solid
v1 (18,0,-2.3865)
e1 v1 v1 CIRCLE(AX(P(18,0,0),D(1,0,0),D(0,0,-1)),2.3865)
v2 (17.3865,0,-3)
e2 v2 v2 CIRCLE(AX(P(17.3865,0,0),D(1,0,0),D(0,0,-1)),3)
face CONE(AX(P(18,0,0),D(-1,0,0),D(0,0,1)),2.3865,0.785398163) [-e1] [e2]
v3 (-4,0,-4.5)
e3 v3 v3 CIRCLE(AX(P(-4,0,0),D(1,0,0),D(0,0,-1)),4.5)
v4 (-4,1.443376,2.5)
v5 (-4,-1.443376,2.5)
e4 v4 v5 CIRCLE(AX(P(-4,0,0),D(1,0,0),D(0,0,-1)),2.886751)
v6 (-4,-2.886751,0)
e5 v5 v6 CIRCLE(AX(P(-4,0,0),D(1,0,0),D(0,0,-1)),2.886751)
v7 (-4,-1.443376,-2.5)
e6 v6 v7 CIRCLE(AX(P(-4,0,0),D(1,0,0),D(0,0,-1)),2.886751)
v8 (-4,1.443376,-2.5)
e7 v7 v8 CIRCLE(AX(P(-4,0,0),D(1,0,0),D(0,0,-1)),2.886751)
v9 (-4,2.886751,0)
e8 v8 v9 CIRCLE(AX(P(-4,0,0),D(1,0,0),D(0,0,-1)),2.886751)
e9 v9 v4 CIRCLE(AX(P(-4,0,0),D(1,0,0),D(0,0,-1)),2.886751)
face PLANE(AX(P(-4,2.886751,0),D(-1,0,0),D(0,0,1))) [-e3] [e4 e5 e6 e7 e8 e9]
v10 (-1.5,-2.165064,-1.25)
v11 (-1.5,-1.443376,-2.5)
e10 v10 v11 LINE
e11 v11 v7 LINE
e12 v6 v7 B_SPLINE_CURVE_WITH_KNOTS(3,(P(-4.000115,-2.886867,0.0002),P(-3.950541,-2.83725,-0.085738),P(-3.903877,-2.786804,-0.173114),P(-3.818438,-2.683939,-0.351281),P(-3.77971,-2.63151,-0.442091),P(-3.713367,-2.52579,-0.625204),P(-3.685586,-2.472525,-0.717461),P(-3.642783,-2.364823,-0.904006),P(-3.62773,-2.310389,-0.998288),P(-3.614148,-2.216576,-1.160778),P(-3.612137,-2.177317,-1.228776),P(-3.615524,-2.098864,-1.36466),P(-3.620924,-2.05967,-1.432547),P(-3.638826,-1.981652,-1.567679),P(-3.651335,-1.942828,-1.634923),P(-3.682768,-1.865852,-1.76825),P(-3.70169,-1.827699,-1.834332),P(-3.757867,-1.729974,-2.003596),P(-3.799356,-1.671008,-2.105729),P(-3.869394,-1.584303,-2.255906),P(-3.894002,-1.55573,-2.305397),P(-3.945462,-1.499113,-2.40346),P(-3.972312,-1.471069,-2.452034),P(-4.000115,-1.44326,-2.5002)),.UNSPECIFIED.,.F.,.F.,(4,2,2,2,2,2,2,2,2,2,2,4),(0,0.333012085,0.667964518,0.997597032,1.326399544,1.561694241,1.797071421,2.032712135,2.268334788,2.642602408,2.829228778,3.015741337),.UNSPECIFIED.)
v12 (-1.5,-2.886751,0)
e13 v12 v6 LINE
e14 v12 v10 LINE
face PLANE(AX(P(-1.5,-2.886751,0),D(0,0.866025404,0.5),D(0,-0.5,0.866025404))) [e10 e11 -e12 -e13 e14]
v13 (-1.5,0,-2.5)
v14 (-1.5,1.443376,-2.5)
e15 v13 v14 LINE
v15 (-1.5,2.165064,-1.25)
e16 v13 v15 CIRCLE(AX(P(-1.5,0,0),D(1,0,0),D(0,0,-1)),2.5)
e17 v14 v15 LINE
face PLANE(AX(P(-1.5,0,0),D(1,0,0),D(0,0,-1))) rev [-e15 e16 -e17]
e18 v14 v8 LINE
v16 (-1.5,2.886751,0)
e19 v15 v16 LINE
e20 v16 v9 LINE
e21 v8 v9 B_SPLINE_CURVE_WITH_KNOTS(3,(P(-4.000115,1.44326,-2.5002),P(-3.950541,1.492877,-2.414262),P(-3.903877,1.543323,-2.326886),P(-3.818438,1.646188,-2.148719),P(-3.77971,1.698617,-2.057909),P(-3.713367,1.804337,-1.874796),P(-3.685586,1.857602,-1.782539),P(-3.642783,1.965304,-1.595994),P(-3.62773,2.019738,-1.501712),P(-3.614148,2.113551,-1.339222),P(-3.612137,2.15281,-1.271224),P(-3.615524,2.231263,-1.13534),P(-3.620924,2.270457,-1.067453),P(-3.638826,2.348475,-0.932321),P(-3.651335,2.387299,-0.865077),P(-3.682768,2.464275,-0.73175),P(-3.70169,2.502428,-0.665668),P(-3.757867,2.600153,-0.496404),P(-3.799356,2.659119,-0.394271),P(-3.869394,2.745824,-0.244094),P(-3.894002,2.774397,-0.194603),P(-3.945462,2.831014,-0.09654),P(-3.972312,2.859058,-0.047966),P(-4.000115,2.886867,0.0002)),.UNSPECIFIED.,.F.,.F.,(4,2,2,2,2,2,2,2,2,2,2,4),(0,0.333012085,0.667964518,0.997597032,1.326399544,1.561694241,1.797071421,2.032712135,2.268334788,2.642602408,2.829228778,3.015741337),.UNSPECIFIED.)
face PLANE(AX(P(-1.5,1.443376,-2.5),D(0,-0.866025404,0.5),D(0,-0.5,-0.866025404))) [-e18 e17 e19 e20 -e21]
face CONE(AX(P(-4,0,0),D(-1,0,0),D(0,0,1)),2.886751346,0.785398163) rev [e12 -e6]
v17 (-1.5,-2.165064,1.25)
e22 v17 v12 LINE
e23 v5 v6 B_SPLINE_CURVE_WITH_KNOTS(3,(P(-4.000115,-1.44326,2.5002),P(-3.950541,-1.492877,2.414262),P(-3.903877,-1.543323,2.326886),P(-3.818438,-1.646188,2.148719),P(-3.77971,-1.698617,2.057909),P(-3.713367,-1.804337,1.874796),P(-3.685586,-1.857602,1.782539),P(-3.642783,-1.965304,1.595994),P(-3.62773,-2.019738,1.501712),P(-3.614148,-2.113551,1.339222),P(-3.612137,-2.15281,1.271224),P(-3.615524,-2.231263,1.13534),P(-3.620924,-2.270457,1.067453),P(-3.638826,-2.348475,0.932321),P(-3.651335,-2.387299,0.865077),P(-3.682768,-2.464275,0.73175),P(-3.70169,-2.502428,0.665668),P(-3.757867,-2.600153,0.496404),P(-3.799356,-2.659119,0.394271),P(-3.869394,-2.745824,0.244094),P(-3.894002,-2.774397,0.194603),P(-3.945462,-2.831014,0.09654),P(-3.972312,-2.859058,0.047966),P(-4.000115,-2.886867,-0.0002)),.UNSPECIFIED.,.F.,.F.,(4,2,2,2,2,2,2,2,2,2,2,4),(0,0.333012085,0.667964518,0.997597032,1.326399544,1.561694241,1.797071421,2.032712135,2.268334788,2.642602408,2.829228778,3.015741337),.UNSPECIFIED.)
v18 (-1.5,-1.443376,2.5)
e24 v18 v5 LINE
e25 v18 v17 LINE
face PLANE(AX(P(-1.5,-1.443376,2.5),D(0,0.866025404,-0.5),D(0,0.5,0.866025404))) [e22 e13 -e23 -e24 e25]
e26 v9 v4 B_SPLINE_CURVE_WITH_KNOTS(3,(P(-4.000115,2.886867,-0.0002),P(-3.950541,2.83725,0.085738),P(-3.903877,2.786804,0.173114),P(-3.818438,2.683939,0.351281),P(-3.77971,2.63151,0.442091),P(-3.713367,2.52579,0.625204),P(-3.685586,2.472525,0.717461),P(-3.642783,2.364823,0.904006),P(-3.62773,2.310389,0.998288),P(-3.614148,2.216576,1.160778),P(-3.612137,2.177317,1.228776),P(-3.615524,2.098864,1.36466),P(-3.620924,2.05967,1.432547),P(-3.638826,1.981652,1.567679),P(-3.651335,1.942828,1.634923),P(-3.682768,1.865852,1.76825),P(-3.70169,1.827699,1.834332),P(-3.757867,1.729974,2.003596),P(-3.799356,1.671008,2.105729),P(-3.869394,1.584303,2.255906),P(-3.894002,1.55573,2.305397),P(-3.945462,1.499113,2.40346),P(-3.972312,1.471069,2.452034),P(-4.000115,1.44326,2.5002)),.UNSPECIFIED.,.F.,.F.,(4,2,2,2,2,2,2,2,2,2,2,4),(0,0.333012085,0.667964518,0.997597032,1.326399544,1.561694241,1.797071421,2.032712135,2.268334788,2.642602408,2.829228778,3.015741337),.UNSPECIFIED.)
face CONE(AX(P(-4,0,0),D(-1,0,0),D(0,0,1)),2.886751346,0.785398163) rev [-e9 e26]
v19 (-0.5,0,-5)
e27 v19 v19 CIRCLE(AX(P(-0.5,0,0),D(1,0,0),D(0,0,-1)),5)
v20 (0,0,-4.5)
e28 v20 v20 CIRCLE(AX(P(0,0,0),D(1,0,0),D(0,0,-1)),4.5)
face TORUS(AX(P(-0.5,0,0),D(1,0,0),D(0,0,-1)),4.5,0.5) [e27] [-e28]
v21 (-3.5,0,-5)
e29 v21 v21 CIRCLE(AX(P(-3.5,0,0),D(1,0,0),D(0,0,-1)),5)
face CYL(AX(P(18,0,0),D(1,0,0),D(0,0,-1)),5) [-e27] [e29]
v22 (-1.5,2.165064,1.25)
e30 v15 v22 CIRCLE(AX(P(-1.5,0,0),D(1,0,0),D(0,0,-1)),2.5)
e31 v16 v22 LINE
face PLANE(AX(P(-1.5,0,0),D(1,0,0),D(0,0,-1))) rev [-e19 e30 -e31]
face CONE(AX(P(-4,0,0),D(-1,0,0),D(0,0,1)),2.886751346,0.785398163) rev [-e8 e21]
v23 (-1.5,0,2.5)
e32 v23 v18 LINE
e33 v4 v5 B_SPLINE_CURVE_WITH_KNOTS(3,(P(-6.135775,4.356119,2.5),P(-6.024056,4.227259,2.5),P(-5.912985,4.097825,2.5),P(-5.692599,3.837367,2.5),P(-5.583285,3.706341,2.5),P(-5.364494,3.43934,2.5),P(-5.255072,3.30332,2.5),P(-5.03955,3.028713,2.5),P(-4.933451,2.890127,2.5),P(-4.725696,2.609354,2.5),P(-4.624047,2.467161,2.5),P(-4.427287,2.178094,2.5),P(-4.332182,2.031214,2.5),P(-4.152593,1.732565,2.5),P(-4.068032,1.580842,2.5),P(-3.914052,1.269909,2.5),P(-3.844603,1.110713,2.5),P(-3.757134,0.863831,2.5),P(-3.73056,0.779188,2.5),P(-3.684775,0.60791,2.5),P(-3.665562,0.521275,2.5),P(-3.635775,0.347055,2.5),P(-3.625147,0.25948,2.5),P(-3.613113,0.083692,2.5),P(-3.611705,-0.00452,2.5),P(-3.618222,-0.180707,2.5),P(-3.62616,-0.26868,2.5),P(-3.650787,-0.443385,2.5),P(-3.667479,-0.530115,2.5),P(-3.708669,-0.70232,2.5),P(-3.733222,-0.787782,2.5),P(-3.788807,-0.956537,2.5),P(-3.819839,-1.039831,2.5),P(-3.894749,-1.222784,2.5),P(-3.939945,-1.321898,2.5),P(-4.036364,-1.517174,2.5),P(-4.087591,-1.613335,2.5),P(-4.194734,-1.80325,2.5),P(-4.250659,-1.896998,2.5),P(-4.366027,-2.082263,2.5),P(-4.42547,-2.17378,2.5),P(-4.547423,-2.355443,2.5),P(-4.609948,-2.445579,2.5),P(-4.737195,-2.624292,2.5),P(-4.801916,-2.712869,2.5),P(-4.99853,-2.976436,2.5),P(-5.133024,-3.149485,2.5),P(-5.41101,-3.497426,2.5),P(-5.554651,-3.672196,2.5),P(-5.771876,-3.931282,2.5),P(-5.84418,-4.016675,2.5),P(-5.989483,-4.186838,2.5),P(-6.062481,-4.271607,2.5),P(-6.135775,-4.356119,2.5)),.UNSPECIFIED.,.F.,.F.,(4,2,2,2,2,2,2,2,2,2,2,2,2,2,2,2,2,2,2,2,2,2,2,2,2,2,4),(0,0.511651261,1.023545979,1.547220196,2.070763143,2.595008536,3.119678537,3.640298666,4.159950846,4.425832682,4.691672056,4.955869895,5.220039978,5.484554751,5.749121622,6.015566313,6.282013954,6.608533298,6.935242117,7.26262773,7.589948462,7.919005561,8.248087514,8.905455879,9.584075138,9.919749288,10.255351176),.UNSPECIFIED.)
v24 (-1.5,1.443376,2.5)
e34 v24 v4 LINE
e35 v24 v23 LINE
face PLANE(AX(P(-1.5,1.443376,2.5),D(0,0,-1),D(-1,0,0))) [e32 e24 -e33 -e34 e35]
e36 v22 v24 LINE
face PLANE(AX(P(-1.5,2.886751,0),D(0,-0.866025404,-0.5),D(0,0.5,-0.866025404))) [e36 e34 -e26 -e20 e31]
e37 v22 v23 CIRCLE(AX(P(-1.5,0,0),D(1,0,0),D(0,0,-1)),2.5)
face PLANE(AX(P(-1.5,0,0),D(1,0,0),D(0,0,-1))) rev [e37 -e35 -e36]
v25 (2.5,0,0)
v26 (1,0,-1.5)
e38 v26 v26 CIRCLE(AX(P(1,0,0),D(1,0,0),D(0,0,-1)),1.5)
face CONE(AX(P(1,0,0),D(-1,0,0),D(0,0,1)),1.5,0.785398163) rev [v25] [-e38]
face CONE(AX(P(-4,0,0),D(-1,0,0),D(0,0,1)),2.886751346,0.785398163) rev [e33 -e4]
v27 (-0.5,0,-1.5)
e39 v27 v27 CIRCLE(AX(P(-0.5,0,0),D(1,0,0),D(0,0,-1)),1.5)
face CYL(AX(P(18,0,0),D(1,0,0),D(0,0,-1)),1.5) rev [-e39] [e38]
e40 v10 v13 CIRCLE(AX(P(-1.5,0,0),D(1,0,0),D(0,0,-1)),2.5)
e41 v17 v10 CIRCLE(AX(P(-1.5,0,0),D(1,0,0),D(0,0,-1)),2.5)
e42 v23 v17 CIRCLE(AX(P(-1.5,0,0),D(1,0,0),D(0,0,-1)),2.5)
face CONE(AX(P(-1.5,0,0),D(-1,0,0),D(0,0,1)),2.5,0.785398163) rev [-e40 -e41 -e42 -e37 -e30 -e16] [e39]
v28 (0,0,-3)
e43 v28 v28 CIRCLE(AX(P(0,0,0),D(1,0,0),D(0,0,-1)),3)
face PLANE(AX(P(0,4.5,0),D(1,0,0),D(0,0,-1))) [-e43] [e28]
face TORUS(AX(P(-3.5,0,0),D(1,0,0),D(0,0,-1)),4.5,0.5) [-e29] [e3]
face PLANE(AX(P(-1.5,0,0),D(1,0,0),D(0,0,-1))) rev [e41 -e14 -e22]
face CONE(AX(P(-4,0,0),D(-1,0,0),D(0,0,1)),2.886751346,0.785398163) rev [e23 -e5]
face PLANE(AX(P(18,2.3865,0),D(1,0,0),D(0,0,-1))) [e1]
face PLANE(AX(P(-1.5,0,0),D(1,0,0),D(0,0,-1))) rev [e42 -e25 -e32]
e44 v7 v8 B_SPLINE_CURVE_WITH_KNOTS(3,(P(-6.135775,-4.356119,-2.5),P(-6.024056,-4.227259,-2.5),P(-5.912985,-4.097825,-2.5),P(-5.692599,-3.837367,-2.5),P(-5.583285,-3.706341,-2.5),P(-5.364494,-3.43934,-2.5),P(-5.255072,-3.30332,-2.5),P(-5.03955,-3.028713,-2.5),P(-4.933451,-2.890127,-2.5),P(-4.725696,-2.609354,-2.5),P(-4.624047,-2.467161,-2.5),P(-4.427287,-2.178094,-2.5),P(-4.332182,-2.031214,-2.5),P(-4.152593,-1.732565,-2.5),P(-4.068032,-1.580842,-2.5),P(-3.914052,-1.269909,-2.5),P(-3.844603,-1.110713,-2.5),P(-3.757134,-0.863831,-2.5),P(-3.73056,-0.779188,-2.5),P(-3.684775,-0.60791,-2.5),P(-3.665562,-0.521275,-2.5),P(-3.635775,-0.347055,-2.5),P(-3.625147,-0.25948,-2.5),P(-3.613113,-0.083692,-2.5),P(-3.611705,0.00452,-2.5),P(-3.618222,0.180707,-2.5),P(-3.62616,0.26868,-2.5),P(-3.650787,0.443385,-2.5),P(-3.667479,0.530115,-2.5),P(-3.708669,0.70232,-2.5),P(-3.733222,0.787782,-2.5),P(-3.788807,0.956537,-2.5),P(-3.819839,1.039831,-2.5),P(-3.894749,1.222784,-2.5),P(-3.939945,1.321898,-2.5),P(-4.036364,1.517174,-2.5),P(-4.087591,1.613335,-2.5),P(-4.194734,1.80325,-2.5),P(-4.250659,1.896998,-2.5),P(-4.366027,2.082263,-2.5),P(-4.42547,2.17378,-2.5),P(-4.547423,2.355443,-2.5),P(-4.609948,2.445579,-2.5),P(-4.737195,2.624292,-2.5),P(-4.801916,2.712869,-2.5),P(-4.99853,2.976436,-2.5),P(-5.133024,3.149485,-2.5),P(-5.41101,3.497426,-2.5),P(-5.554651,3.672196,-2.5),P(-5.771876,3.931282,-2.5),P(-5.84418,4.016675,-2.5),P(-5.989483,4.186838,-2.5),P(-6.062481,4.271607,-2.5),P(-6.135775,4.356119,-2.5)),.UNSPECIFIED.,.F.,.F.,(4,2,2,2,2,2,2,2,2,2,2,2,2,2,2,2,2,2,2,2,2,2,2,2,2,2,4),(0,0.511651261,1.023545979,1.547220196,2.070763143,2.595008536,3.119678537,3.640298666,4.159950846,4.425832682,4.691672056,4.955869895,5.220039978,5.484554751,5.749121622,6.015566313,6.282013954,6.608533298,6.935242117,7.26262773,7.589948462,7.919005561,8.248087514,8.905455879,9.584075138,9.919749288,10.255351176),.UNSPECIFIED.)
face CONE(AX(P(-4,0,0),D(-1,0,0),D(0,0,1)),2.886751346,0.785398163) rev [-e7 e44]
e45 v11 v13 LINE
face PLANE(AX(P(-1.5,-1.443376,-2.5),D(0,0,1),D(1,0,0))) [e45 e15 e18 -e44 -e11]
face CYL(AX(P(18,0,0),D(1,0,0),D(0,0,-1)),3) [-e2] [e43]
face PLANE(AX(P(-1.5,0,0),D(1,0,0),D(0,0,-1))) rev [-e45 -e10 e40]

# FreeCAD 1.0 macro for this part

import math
import FreeCAD as App
import Part
import Sketcher
from FreeCAD import Vector
Q = App.Units.Quantity

doc = App.newDocument("Part")
body = doc.addObject("PartDesign::Body", "Body")

# Sketch on XY plane
sketch1 = body.newObject("Sketcher::SketchObject", "Sketch")
sketch1.AttachmentSupport = (doc.getObject("XY_Plane"), [""])
sketch1.MapMode = "FlatFace"
sketch1.addGeometry(Part.LineSegment(Vector(1, 1.5, 0), Vector(2.5, 0, 0)), False)
sketch1.addGeometry(Part.LineSegment(Vector(2.5, 0, 0), Vector(18, 0, 0)), False)
sketch1.addGeometry(Part.LineSegment(Vector(18, 0, 0), Vector(18, 2.39, 0)), False)
sketch1.addGeometry(Part.LineSegment(Vector(18, 2.39, 0), Vector(17.39, 3, 0)), False)
sketch1.addGeometry(Part.LineSegment(Vector(17.39, 3, 0), Vector(0, 3, 0)), False)
sketch1.addGeometry(Part.LineSegment(Vector(0, 3, 0), Vector(0, 4.5, 0)), False)
sketch1.addGeometry(Part.ArcOfCircle(Part.Circle(Vector(-0.5, 4.5, 0), Vector(0, 0, 1), 0.5), math.radians(0), math.radians(90)), False)
sketch1.addGeometry(Part.LineSegment(Vector(-0.5, 5, 0), Vector(-3.5, 5, 0)), False)
sketch1.addGeometry(Part.ArcOfCircle(Part.Circle(Vector(-3.5, 4.5, 0), Vector(0, 0, 1), 0.5), math.radians(90), math.radians(180)), False)
sketch1.addGeometry(Part.LineSegment(Vector(-4, 4.5, 0), Vector(-4, 2.89, 0)), False)
sketch1.addGeometry(Part.LineSegment(Vector(-4, 2.89, 0), Vector(-3.61, 2.5, 0)), False)
sketch1.addGeometry(Part.LineSegment(Vector(-3.61, 2.5, 0), Vector(-1.5, 2.5, 0)), False)
sketch1.addGeometry(Part.LineSegment(Vector(-1.5, 2.5, 0), Vector(-0.5, 1.5, 0)), False)
sketch1.addGeometry(Part.LineSegment(Vector(-0.5, 1.5, 0), Vector(1, 1.5, 0)), False)
sketch1.addConstraint(Sketcher.Constraint("Coincident", 0, 2, 1, 1))
sketch1.addConstraint(Sketcher.Constraint("Coincident", 1, 2, 2, 1))
sketch1.addConstraint(Sketcher.Constraint("Coincident", 2, 2, 3, 1))
sketch1.addConstraint(Sketcher.Constraint("Coincident", 3, 2, 4, 1))
sketch1.addConstraint(Sketcher.Constraint("Coincident", 4, 2, 5, 1))
sketch1.addConstraint(Sketcher.Constraint("Tangent", 5, 2, 6, 1))
sketch1.addConstraint(Sketcher.Constraint("Tangent", 6, 2, 7, 1))
sketch1.addConstraint(Sketcher.Constraint("Tangent", 7, 2, 8, 1))
sketch1.addConstraint(Sketcher.Constraint("Tangent", 8, 2, 9, 1))
sketch1.addConstraint(Sketcher.Constraint("Coincident", 9, 2, 10, 1))
sketch1.addConstraint(Sketcher.Constraint("Coincident", 10, 2, 11, 1))
sketch1.addConstraint(Sketcher.Constraint("Coincident", 11, 2, 12, 1))
sketch1.addConstraint(Sketcher.Constraint("Coincident", 12, 2, 13, 1))
sketch1.addConstraint(Sketcher.Constraint("Coincident", 13, 2, 0, 1))
sketch1.addConstraint(Sketcher.Constraint("Horizontal", 1))
sketch1.addConstraint(Sketcher.Constraint("Vertical", 2))
sketch1.addConstraint(Sketcher.Constraint("Horizontal", 4))
sketch1.addConstraint(Sketcher.Constraint("Vertical", 5))
sketch1.addConstraint(Sketcher.Constraint("Horizontal", 7))
sketch1.addConstraint(Sketcher.Constraint("Vertical", 9))
sketch1.addConstraint(Sketcher.Constraint("Horizontal", 11))
sketch1.addConstraint(Sketcher.Constraint("Horizontal", 13))
sketch1.addConstraint(Sketcher.Constraint("Equal", 6, 8))
sketch1.addConstraint(Sketcher.Constraint("PointOnObject", 0, 2, -1))
sketch1.addConstraint(Sketcher.Constraint("PointOnObject", 4, 2, -2))
sketch1.addConstraint(Sketcher.Constraint("Parallel", 0, 3))
sketch1.addConstraint(Sketcher.Constraint("Parallel", 3, 10))
sketch1.addConstraint(Sketcher.Constraint("Parallel", 10, 12))
sketch1.addConstraint(Sketcher.Constraint("Vertical", 6, 2, 12, 2))
sketch1.addConstraint(Sketcher.Constraint("Equal", 13, 5))
sketch1.addConstraint(Sketcher.Constraint("Radius", 6, Q("0.5 mm")))
sketch1.addConstraint(Sketcher.Constraint("DistanceX", 7, 2, 7, 1, Q("3 mm")))
sketch1.addConstraint(Sketcher.Constraint("Angle", 0, Q("-45 deg")))
sketch1.addConstraint(Sketcher.Constraint("DistanceX", 1, 1, 1, 2, Q("15.5 mm")))
sketch1.addConstraint(Sketcher.Constraint("DistanceX", 13, 1, 13, 2, Q("1.5 mm")))
sketch1.addConstraint(Sketcher.Constraint("DistanceX", -1, 1, 1, 2, Q("18 mm")))
sketch1.addConstraint(Sketcher.Constraint("DistanceY", -1, 1, 3, 2, Q("3 mm")))
sketch1.addConstraint(Sketcher.Constraint("DistanceY", 10, 2, 8, 3, Q("2 mm")))
sketch1.addConstraint(Sketcher.Constraint("DistanceX", 4, 2, 4, 1, Q("17.3865 mm")))
sketch1.addConstraint(Sketcher.Constraint("DistanceX", 11, 1, 11, 2, Q("2.113249 mm")))
revolution = body.newObject("PartDesign::Revolution", "Revolution")
revolution.Profile = sketch1
revolution.ReferenceAxis = (sketch1, ["H_Axis"])
revolution.Angle = 360

# Sketch on YZ plane
sketch2 = body.newObject("Sketcher::SketchObject", "Sketch001")
sketch2.AttachmentSupport = (doc.getObject("YZ_Plane"), [""])
sketch2.MapMode = "FlatFace"
sketch2.AttachmentOffset = App.Placement(Vector(0, 0, -4), App.Rotation())
sketch2.addGeometry(Part.LineSegment(Vector(-1.4, 2.5, 0), Vector(-2.9, 0, 0)), False)
sketch2.addGeometry(Part.LineSegment(Vector(-2.9, 0, 0), Vector(-1.4, -2.5, 0)), False)
sketch2.addGeometry(Part.LineSegment(Vector(-1.4, -2.5, 0), Vector(1.4, -2.5, 0)), False)
sketch2.addGeometry(Part.LineSegment(Vector(1.4, -2.5, 0), Vector(2.9, 0, 0)), False)
sketch2.addGeometry(Part.LineSegment(Vector(2.9, 0, 0), Vector(1.4, 2.5, 0)), False)
sketch2.addGeometry(Part.LineSegment(Vector(1.4, 2.5, 0), Vector(-1.4, 2.5, 0)), False)
sketch2.addConstraint(Sketcher.Constraint("Coincident", 0, 2, 1, 1))
sketch2.addConstraint(Sketcher.Constraint("Coincident", 1, 2, 2, 1))
sketch2.addConstraint(Sketcher.Constraint("Coincident", 2, 2, 3, 1))
sketch2.addConstraint(Sketcher.Constraint("Coincident", 3, 2, 4, 1))
sketch2.addConstraint(Sketcher.Constraint("Coincident", 4, 2, 5, 1))
sketch2.addConstraint(Sketcher.Constraint("Coincident", 5, 2, 0, 1))
sketch2.addConstraint(Sketcher.Constraint("Horizontal", 2))
sketch2.addConstraint(Sketcher.Constraint("Horizontal", 5))
sketch2.addConstraint(Sketcher.Constraint("Symmetric", 0, 2, 3, 2, -1, 1))
sketch2.addConstraint(Sketcher.Constraint("Symmetric", 1, 2, 4, 2, -1, 1))
sketch2.addConstraint(Sketcher.Constraint("PointOnObject", 0, 2, -1))
sketch2.addConstraint(Sketcher.Constraint("Parallel", 0, 3))
sketch2.addConstraint(Sketcher.Constraint("Vertical", 2, 2, 4, 2))
sketch2.addConstraint(Sketcher.Constraint("Angle", 0, Q("-120 deg")))
sketch2.addConstraint(Sketcher.Constraint("DistanceY", 2, 2, 4, 2, Q("5 mm")))
sketch2.addConstraint(Sketcher.Constraint("DistanceX", 2, 1, 2, 2, Q("2.886751 mm")))
pocket1 = body.newObject("PartDesign::Pocket", "Pocket")
pocket1.Profile = sketch2
pocket1.Length = 2.5
pocket1.Reversed = True

doc.recompute()
